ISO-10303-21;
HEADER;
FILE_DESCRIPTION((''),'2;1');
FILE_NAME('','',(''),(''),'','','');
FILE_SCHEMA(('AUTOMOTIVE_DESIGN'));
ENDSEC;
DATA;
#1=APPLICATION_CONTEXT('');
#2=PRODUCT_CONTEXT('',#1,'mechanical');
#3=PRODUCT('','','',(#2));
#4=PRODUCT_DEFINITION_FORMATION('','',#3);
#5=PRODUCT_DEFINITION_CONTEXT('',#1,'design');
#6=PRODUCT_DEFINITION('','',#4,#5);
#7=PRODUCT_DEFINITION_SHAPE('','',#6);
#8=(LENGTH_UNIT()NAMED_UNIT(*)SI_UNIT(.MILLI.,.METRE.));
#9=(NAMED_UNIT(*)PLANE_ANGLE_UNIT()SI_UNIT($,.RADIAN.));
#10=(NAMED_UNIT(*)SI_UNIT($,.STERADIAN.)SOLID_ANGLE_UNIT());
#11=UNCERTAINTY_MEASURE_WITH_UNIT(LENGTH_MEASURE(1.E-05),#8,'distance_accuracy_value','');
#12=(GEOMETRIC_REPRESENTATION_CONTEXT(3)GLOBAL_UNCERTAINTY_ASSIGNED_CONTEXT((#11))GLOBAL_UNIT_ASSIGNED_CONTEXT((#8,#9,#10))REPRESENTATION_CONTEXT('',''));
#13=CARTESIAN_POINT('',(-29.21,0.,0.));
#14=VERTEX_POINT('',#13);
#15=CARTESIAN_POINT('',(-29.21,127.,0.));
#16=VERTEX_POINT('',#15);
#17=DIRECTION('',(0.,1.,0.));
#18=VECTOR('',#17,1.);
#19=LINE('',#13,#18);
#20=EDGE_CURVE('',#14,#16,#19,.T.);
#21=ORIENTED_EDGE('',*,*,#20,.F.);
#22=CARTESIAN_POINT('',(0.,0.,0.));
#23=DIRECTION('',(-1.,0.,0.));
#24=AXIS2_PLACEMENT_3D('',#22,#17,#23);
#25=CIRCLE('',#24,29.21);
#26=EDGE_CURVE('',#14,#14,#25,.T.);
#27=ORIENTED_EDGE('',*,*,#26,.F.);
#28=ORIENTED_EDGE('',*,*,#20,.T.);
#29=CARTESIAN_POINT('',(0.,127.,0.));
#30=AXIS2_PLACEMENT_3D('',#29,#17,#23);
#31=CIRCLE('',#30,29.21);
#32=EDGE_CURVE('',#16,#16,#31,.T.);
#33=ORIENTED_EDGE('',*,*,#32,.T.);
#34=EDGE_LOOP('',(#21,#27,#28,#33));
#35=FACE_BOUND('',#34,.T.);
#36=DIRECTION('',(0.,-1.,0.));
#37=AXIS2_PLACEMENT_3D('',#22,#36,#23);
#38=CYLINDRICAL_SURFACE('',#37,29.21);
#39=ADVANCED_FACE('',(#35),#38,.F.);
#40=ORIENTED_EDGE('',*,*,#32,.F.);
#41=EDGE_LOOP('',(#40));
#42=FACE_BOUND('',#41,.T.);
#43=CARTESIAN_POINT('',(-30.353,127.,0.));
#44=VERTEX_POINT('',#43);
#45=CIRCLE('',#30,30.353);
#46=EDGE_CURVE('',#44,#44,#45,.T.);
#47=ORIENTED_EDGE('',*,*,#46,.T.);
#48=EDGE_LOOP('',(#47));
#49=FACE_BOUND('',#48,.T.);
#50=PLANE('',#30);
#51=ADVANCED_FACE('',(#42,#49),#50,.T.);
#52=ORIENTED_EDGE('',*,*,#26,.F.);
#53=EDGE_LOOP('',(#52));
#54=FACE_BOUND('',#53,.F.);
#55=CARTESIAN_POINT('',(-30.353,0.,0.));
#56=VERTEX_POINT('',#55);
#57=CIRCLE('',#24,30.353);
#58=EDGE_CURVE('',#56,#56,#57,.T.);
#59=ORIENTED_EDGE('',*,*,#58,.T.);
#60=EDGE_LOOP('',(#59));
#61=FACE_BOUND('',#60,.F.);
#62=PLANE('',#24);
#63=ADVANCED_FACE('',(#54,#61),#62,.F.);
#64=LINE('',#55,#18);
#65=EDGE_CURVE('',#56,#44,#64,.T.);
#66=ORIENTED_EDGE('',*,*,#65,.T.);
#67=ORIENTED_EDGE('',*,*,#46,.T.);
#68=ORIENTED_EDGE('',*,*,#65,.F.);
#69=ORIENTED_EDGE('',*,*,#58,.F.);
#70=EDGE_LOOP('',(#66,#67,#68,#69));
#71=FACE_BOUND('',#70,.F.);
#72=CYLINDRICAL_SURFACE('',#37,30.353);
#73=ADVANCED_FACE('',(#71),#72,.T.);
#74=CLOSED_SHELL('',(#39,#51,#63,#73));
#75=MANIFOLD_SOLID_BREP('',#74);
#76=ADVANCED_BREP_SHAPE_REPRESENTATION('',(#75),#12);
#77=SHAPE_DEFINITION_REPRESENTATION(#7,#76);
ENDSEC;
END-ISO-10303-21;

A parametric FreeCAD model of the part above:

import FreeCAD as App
import Part
import Sketcher
from FreeCAD import Vector
Q = App.Units.Quantity

doc = App.newDocument("Part")
body = doc.addObject("PartDesign::Body", "Body")

sketch1 = body.newObject("Sketcher::SketchObject", "Sketch")
sketch1.AttachmentSupport = (doc.getObject("XZ_Plane"), [""])
sketch1.MapMode = "FlatFace"
sketch1.addGeometry(Part.Circle(Vector(0, 0, 0), Vector(0, 0, 1), 30), False)
sketch1.addGeometry(Part.Circle(Vector(0, 0, 0), Vector(0, 0, 1), 29), False)
sketch1.addConstraint(Sketcher.Constraint("Coincident", 0, 3, -1, 1))
sketch1.addConstraint(Sketcher.Constraint("Coincident", 1, 3, -1, 1))
sketch1.addConstraint(Sketcher.Constraint("Diameter", 1, Q("2.3 in")))
sketch1.addConstraint(Sketcher.Constraint("Diameter", 0, Q("2.39 in")))
pad1 = body.newObject("PartDesign::Pad", "Pad")
pad1.Profile = sketch1
pad1.Length = Q("5 in")
pad1.Reversed = True

doc.recompute()
